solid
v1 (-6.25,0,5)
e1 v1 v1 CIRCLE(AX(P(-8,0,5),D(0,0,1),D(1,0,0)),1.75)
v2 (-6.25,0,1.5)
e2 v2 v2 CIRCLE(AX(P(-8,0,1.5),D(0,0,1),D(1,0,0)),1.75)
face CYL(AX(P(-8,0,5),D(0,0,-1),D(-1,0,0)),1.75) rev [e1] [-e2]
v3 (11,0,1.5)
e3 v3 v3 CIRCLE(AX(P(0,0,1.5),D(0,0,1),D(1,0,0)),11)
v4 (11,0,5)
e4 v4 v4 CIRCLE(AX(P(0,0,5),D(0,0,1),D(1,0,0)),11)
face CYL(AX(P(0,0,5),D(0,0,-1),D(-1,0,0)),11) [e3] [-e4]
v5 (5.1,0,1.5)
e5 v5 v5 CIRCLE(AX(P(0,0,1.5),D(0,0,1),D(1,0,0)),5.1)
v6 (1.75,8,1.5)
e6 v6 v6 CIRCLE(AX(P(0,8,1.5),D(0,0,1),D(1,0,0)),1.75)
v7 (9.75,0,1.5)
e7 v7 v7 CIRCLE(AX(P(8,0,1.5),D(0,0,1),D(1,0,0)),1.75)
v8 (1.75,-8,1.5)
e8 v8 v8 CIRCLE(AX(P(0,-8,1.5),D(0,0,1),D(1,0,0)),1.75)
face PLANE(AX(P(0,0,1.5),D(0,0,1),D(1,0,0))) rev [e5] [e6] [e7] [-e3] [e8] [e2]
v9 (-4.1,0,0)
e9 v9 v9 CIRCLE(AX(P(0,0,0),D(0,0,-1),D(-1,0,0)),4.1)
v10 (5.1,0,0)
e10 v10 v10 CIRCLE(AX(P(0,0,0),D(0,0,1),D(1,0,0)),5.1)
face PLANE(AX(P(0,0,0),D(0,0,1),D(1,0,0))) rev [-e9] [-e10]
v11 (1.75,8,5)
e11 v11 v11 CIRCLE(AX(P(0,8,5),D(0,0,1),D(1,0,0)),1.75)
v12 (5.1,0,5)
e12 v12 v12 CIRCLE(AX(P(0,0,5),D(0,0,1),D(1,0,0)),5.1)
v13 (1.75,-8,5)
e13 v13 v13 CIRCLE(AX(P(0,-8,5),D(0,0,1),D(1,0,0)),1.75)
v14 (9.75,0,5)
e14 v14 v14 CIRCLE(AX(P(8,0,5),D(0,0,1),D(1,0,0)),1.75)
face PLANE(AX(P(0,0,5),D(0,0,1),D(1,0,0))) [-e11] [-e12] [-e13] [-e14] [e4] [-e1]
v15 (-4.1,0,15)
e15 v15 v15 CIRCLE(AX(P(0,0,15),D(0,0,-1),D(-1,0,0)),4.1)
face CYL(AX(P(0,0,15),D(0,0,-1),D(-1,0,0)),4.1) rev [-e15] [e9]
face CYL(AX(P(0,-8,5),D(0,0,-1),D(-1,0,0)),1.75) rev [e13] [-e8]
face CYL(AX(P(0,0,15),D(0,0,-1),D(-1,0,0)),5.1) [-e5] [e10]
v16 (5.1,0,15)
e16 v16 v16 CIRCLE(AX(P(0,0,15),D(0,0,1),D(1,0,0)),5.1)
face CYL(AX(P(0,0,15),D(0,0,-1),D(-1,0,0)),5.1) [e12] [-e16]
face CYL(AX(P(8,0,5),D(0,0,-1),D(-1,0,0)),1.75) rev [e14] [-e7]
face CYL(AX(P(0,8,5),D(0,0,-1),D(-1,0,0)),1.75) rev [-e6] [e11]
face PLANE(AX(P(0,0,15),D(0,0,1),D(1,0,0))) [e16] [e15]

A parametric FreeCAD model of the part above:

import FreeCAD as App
import Part
import Sketcher

doc = App.newDocument("Part")
body = doc.addObject("PartDesign::Body", "Body")

# Sketch on XY plane
sketch1 = body.newObject("Sketcher::SketchObject", "Sketch")
sketch1.AttachmentSupport = (doc.getObject("XY_Plane"), [""])
sketch1.MapMode = "FlatFace"
sketch1.addGeometry(Part.Circle(App.Vector(0, 0, 0), App.Vector(0, 0, 1), 5), False)
sketch1.addConstraint([
    Sketcher.Constraint("Coincident", 0, 3, -1, 1),
    Sketcher.Constraint("Diameter", 0, 10.2),
])
pad1 = body.newObject("PartDesign::Pad", "Pad")
pad1.Profile = sketch1
pad1.Length = 15

# Sketch on XY plane
sketch2 = body.newObject("Sketcher::SketchObject", "Sketch001")
sketch2.AttachmentSupport = (doc.getObject("XY_Plane"), [""])
sketch2.MapMode = "FlatFace"
sketch2.AttachmentOffset = App.Placement(App.Vector(0, 0, 1.5), App.Rotation())
sketch2.addGeometry([
    Part.Circle(App.Vector(0, 0, 0), App.Vector(0, 0, 1), 11),  # 0
    Part.Circle(App.Vector(0, -8, 0), App.Vector(0, 0, 1), 1.8),  # 1
    Part.Circle(App.Vector(-8, 0, 0), App.Vector(0, 0, 1), 1.8),  # 2
    Part.Circle(App.Vector(8, 0, 0), App.Vector(0, 0, 1), 1.8),  # 3
    Part.Circle(App.Vector(0, 8, 0), App.Vector(0, 0, 1), 1.8),  # 4
], False)
sketch2.addConstraint([
    Sketcher.Constraint("Coincident", 0, 3, -1, 1),
    Sketcher.Constraint("Equal", 1, 2),
    Sketcher.Constraint("Equal", 2, 3),
    Sketcher.Constraint("Equal", 3, 4),
    Sketcher.Constraint("Symmetric", 2, 3, 3, 3, -1, 1),
    Sketcher.Constraint("Symmetric", 1, 3, 4, 3, -1, 1),
    Sketcher.Constraint("PointOnObject", 1, 3, -2),
    Sketcher.Constraint("PointOnObject", 2, 3, -1),
    Sketcher.Constraint("Diameter", 0, 22.0),
    Sketcher.Constraint("Diameter", 1, 3.5),
    Sketcher.Constraint("DistanceY", 1, 3, -1, 1, 8.0),
    Sketcher.Constraint("DistanceX", 2, 3, -1, 1, 8.0),
])
pad2 = body.newObject("PartDesign::Pad", "Pad001")
pad2.Profile = sketch2
pad2.Length = 3.5

# Sketch on XY plane
sketch3 = body.newObject("Sketcher::SketchObject", "Sketch002")
sketch3.AttachmentSupport = (doc.getObject("XY_Plane"), [""])
sketch3.MapMode = "FlatFace"
sketch3.addGeometry(Part.Circle(App.Vector(0, 0, 0), App.Vector(0, 0, 1), 4.1), False)
sketch3.addConstraint([
    Sketcher.Constraint("Coincident", 0, 3, -1, 1),
    Sketcher.Constraint("Diameter", 0, 8.2),
])
pocket1 = body.newObject("PartDesign::Pocket", "Pocket")
pocket1.Profile = sketch3
pocket1.Type = "ThroughAll"
pocket1.Reversed = True

doc.recompute()
